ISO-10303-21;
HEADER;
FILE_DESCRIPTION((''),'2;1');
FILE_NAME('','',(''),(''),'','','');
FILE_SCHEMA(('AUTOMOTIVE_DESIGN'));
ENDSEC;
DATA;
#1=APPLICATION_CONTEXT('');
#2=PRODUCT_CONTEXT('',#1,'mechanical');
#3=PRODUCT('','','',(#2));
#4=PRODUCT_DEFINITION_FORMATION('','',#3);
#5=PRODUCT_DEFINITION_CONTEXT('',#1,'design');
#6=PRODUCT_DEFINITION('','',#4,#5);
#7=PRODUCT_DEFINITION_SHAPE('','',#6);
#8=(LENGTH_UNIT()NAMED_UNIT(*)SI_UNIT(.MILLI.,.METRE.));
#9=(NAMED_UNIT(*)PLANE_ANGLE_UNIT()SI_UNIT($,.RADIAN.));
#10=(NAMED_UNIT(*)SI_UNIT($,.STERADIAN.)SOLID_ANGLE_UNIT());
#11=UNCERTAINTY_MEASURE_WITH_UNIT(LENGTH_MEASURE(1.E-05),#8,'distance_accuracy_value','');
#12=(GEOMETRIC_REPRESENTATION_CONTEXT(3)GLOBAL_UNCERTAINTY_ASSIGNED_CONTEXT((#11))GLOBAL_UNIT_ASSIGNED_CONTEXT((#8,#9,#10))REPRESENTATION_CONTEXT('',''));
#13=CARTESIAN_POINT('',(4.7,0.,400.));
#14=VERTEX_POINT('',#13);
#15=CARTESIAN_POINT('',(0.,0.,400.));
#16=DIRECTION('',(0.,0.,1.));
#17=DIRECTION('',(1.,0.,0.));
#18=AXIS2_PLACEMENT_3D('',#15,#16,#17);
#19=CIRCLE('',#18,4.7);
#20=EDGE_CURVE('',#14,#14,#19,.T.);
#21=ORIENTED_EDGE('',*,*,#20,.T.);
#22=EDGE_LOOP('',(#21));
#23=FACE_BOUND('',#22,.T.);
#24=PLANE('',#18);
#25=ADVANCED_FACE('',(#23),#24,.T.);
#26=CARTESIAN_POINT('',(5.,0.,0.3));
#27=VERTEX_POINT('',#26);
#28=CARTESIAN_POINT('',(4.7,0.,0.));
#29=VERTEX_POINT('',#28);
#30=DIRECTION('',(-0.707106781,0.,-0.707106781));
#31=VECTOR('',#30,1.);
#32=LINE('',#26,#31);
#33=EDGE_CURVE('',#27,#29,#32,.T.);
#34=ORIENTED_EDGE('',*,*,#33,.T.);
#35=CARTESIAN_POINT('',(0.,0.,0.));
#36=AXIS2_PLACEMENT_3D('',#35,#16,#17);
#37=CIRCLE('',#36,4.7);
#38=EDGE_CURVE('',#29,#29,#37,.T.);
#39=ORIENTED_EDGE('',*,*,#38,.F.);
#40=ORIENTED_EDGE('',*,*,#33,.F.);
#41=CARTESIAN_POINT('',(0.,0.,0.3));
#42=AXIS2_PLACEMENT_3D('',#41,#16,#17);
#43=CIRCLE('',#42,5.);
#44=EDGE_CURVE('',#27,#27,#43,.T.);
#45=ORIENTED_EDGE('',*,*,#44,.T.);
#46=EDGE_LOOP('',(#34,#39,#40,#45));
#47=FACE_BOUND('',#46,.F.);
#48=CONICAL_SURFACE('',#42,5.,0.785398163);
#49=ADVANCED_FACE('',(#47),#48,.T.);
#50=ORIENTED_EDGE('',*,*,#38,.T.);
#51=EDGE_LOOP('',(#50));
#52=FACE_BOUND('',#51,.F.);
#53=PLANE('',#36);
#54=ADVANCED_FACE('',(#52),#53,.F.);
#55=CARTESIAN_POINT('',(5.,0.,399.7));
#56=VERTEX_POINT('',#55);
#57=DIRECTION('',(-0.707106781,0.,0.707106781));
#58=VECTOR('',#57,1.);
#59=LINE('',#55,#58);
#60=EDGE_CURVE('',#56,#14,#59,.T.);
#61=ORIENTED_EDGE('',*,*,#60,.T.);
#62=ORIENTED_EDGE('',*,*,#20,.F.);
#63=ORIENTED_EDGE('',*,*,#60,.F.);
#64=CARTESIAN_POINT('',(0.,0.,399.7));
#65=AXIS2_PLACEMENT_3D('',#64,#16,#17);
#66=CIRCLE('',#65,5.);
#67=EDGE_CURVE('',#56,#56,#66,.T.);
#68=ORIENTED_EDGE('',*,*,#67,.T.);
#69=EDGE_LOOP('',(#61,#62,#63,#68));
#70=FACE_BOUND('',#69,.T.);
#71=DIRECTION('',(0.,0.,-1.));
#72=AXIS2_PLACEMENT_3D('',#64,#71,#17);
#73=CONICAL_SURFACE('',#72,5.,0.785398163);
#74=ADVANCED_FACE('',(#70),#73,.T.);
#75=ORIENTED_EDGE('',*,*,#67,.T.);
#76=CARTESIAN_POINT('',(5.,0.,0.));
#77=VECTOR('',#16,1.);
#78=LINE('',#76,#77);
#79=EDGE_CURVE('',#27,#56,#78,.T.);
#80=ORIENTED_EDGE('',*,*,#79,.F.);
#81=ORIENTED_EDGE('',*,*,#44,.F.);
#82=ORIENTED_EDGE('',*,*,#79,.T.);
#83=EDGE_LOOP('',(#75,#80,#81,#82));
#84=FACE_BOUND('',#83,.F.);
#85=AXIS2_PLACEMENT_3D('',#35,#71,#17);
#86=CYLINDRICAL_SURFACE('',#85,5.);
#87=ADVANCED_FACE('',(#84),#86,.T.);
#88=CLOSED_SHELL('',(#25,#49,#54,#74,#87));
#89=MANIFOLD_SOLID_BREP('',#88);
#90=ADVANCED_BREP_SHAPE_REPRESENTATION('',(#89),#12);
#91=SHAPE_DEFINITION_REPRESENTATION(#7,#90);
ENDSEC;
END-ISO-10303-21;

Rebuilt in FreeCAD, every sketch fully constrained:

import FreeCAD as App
import Part
import Sketcher
from FreeCAD import Vector


def edges_at(feature, points):
    """Names of the edges that pass closest to the given points."""
    edges = feature.Shape.Edges
    near = lambda p: min(range(len(edges)), key=lambda i: edges[i].distToShape(Part.Vertex(*p))[0])
    return sorted({f"Edge{near(p) + 1}" for p in points})

doc = App.newDocument("Part")
params = doc.addObject("Spreadsheet::Sheet", "Params")
for row, (alias, value) in enumerate([
    ("sketch1_diameter", "10 mm"),
    ("pad1_length", "400 mm"),
    ("chamfer_size", "0.3 mm"),
], start=1):
    params.set(f"A{row}", alias)
    params.set(f"B{row}", "=" + value)
    params.setAlias(f"B{row}", alias)

body = doc.addObject("PartDesign::Body", "Body")

sketch1 = body.newObject("Sketcher::SketchObject", "Sketch")
sketch1.AttachmentSupport = (doc.getObject("XY_Plane"), [""])
sketch1.MapMode = "FlatFace"
sketch1.addGeometry(Part.Circle(Vector(0, 0, 0), Vector(0, 0, 1), 5), False)
sketch1.addConstraint([
    Sketcher.Constraint("Coincident", 0, 3, -1, 1),
    Sketcher.Constraint("Diameter", 0, 10.0),
])
sketch1.setExpression("Constraints[1]", "Params.sketch1_diameter")
pad1 = body.newObject("PartDesign::Pad", "Pad")
pad1.Profile = sketch1
pad1.setExpression("Length", "Params.pad1_length")
doc.recompute()

chamfer = body.newObject("PartDesign::Chamfer", "Chamfer")
chamfer.Base = (pad1, edges_at(pad1, [(-5, 0, 400), (-5, 0, 0)]))
chamfer.setExpression("Size", "Params.chamfer_size")

doc.recompute()
